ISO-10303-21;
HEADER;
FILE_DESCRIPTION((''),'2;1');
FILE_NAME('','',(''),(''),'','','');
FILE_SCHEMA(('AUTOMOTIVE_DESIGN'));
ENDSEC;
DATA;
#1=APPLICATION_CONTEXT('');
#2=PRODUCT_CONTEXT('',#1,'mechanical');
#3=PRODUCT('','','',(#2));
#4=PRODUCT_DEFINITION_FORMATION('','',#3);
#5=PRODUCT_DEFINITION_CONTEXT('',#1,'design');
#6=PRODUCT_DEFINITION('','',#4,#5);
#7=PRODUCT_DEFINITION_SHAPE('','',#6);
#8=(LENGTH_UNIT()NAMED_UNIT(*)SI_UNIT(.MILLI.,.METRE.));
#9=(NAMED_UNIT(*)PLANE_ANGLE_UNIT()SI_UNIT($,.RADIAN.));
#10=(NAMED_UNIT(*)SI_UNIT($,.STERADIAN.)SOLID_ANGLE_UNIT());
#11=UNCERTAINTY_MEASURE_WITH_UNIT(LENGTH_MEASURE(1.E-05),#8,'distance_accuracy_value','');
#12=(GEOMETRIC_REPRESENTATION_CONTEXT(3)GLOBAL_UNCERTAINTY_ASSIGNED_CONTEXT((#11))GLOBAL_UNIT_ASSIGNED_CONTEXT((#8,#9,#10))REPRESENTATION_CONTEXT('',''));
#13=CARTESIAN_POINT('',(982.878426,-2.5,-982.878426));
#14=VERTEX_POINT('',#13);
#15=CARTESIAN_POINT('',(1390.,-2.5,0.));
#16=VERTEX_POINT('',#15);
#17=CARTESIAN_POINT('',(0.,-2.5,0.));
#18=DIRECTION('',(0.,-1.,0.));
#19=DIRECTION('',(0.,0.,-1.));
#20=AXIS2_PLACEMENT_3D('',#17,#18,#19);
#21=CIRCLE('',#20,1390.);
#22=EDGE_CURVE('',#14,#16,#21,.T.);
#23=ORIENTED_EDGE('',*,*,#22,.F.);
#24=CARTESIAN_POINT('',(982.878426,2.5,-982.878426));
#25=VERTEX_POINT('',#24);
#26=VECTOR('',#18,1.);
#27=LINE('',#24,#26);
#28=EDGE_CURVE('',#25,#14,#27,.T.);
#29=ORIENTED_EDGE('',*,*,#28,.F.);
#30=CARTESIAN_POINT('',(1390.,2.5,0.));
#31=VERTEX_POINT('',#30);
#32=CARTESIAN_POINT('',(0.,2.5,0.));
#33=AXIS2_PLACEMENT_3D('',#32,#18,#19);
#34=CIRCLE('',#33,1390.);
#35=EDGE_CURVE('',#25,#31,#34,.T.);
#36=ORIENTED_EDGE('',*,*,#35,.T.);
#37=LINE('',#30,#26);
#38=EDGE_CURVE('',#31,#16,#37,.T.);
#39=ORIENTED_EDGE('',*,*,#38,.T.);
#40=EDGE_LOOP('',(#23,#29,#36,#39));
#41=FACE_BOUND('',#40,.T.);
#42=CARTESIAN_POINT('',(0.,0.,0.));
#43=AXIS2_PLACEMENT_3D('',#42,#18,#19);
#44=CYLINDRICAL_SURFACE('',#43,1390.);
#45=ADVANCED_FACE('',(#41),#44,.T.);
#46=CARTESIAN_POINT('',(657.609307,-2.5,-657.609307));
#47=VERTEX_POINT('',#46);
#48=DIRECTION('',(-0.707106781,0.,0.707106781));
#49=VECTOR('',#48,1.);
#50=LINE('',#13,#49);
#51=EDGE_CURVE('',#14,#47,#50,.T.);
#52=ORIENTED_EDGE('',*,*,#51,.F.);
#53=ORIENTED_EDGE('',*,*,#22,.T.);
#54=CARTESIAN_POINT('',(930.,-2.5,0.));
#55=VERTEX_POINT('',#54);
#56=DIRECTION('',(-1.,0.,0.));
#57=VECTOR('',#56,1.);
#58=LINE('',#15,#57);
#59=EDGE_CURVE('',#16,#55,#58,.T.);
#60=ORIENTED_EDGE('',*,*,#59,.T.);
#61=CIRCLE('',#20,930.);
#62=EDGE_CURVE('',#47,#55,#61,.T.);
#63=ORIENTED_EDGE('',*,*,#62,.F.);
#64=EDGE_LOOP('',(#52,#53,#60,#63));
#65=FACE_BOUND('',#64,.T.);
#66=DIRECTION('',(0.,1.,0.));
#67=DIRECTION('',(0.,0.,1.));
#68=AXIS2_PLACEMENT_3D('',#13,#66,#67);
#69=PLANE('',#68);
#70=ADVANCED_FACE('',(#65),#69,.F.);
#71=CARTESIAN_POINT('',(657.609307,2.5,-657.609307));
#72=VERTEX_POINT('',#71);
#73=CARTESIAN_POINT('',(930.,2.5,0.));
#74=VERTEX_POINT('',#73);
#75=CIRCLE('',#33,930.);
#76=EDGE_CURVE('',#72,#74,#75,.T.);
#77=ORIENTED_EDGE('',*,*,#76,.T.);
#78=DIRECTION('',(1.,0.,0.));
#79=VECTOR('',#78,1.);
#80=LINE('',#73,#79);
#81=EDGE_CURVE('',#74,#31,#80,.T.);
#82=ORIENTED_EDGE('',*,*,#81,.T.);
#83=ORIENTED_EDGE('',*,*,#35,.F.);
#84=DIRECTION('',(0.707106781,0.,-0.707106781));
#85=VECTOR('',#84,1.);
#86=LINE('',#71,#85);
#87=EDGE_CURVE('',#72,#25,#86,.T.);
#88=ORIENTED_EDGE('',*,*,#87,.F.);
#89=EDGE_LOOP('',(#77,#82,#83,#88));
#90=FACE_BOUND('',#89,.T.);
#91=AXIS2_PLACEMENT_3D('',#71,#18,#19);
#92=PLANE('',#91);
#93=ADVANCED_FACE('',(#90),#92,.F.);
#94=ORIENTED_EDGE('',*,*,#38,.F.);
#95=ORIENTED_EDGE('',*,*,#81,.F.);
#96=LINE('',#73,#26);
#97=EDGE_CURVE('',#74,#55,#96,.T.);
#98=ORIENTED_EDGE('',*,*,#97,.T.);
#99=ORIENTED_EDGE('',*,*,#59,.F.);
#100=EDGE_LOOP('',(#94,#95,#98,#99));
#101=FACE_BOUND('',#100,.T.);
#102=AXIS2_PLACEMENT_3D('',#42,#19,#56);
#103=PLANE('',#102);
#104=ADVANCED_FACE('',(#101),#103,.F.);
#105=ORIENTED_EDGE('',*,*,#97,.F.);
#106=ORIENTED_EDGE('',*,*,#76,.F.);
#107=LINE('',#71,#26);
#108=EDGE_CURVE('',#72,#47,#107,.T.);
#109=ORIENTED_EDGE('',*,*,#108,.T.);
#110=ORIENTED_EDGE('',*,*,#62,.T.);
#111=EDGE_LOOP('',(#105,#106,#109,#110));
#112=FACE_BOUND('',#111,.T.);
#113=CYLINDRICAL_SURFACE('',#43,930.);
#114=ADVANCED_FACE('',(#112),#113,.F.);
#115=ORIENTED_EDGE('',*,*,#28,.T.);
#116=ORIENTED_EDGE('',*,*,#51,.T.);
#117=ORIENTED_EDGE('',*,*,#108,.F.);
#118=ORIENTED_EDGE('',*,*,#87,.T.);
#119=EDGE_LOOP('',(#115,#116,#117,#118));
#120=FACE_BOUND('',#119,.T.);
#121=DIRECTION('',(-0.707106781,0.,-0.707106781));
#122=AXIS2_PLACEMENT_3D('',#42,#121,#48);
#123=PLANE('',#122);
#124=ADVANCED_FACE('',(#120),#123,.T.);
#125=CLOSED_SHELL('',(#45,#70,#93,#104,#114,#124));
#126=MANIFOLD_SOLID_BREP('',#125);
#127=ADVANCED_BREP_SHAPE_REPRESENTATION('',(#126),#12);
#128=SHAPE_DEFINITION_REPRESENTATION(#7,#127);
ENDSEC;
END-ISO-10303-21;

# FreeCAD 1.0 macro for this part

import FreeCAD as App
import Part
import Sketcher
Q = App.Units.Quantity

doc = App.newDocument("Part")
body = doc.addObject("PartDesign::Body", "Body")

# Sketch on XY plane
sketch1 = body.newObject("Sketcher::SketchObject", "Sketch")
sketch1.AttachmentSupport = (doc.getObject("XY_Plane"), [""])
sketch1.MapMode = "FlatFace"
sketch1.addGeometry(Part.LineSegment(App.Vector(930, 2.5, 0), App.Vector(930, -2.5, 0)), False)
sketch1.addGeometry(Part.LineSegment(App.Vector(930, -2.5, 0), App.Vector(1390, -2.5, 0)), False)
sketch1.addGeometry(Part.LineSegment(App.Vector(1390, -2.5, 0), App.Vector(1390, 2.5, 0)), False)
sketch1.addGeometry(Part.LineSegment(App.Vector(1390, 2.5, 0), App.Vector(930, 2.5, 0)), False)
sketch1.addConstraint(Sketcher.Constraint("Coincident", 0, 2, 1, 1))
sketch1.addConstraint(Sketcher.Constraint("Coincident", 1, 2, 2, 1))
sketch1.addConstraint(Sketcher.Constraint("Coincident", 2, 2, 3, 1))
sketch1.addConstraint(Sketcher.Constraint("Coincident", 3, 2, 0, 1))
sketch1.addConstraint(Sketcher.Constraint("Vertical", 0))
sketch1.addConstraint(Sketcher.Constraint("Horizontal", 1))
sketch1.addConstraint(Sketcher.Constraint("Vertical", 2))
sketch1.addConstraint(Sketcher.Constraint("Horizontal", 3))
sketch1.addConstraint(Sketcher.Constraint("DistanceX", 1, 1, 1, 2, Q("460 mm")))
sketch1.addConstraint(Sketcher.Constraint("DistanceY", 0, 2, 0, 1, Q("5 mm")))
sketch1.addConstraint(Sketcher.Constraint("DistanceX", -1, 1, 0, 2, Q("930 mm")))
sketch1.addConstraint(Sketcher.Constraint("DistanceY", 0, 2, -1, 1, Q("2.5 mm")))
revolution = body.newObject("PartDesign::Revolution", "Revolution")
revolution.Profile = sketch1
revolution.ReferenceAxis = (sketch1, ["V_Axis"])
revolution.Angle = 45

doc.recompute()
